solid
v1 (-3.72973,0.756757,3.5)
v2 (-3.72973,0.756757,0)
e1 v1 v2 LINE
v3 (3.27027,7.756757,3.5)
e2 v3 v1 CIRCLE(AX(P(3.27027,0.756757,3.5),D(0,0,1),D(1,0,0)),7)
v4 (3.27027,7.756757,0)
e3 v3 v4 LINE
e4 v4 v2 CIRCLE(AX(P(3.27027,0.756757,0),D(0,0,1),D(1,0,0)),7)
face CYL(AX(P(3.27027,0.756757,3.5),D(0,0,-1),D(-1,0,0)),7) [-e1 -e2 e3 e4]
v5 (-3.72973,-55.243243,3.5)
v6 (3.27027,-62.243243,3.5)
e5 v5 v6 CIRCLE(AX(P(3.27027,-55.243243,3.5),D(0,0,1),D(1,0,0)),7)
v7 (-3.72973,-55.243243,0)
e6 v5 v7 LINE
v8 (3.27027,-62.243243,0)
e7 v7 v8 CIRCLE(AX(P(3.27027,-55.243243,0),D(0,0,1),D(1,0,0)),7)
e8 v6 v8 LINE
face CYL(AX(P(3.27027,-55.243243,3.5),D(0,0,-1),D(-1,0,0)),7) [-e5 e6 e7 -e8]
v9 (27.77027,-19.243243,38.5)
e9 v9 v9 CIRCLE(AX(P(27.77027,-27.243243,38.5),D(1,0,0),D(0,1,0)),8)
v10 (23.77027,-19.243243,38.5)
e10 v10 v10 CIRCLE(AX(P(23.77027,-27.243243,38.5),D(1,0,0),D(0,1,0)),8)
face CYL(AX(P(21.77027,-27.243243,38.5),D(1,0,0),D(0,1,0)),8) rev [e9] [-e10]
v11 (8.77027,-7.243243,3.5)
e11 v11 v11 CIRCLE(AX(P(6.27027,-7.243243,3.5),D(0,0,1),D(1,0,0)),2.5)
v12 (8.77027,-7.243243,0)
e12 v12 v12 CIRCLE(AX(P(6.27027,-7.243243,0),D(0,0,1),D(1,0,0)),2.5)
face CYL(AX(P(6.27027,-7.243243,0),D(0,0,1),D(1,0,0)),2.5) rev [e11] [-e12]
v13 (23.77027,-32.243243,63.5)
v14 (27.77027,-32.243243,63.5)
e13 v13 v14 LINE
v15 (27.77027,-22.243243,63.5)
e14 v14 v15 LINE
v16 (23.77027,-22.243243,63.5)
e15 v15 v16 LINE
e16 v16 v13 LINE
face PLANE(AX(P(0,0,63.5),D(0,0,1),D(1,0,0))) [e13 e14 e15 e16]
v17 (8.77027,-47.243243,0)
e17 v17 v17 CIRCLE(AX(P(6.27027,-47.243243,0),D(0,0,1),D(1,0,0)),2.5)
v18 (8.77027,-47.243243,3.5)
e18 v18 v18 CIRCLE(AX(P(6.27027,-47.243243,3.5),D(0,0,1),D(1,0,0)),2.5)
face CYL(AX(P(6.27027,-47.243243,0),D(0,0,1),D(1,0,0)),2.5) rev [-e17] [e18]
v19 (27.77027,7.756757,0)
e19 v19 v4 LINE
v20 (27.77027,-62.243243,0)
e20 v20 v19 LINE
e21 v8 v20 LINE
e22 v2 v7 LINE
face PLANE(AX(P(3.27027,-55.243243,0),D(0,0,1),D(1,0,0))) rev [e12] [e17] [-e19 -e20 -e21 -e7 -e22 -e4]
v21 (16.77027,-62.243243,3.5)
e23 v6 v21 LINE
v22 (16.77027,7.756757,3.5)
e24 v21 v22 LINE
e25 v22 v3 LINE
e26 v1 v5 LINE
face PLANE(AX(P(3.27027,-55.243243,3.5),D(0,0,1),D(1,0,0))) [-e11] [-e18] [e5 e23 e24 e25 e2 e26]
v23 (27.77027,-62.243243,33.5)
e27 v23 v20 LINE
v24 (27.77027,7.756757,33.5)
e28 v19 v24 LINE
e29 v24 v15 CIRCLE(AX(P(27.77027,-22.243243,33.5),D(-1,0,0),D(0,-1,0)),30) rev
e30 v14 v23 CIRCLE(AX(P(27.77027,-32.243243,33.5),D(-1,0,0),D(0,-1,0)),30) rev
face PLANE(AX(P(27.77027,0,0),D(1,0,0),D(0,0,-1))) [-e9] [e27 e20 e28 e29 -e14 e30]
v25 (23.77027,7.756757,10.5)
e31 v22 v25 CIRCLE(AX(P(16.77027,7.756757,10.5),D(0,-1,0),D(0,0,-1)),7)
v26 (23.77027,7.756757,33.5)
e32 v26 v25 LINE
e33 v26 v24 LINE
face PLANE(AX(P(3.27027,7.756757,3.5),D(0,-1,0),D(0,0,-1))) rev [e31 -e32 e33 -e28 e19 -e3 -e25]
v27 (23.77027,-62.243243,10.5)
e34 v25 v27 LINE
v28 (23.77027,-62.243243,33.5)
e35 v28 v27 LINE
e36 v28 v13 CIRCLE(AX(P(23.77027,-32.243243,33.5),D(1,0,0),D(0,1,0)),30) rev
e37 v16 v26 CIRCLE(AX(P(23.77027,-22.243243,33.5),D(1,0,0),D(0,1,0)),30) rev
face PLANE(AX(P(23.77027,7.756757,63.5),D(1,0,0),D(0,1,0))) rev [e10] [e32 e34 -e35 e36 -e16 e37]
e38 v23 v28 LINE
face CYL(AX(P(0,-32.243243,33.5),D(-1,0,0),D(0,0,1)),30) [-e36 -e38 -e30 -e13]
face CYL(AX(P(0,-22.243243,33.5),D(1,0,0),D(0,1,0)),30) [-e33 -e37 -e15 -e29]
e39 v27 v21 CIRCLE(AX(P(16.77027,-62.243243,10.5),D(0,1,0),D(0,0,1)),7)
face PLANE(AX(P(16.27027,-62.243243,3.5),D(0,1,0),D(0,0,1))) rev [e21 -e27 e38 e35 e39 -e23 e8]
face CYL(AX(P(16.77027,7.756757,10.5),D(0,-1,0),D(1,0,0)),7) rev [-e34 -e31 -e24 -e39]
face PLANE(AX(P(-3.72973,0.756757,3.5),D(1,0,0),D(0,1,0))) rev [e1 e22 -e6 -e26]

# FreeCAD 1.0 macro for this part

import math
import FreeCAD as App
import Part
import Sketcher
from FreeCAD import Vector


def edges_at(feature, points):
    """Names of the edges that pass closest to the given points."""
    edges = feature.Shape.Edges
    near = lambda p: min(range(len(edges)), key=lambda i: edges[i].distToShape(Part.Vertex(*p))[0])
    return sorted({f"Edge{near(p) + 1}" for p in points})

doc = App.newDocument("Part")
params = doc.addObject("Spreadsheet::Sheet", "Params")
for row, (alias, value) in enumerate([
    ("sketch1_radius", "7 mm"),
    ("sketch1_width", "13 mm"),
    ("sketch1_height", "70 mm"),
    ("pad1_length", "3.5 mm"),
    ("sketch2_diameter", "5 mm"),
    ("pocket1_length", "3.5 mm"),
    ("sketch3_width", "4 mm"),
    ("sketch3_height", "70 mm"),
    ("pad2_length", "60 mm"),
    ("sketch4_diameter", "16 mm"),
    ("pocket2_length", "6 mm"),
    ("fillet_radius", "30 mm"),
    ("sketch5_width", "70 mm"),
    ("sketch5_height", "3.5 mm"),
    ("pad3_length", "11.5 mm"),
    ("fillet2_radius", "7 mm"),
], start=1):
    params.set(f"A{row}", alias)
    params.set(f"B{row}", "=" + value)
    params.setAlias(f"B{row}", alias)

body = doc.addObject("PartDesign::Body", "Body")

# Sketch on XY plane
sketch1 = body.newObject("Sketcher::SketchObject", "Sketch")
sketch1.AttachmentSupport = (doc.getObject("XY_Plane"), [""])
sketch1.MapMode = "FlatFace"
sketch1.addGeometry(Part.LineSegment(Vector(16.27027, -62.243243, 0), Vector(16.27027, 7.756757, 0)), False)
sketch1.addGeometry(Part.LineSegment(Vector(16.27027, 7.756757, 0), Vector(3.27027, 7.756757, 0)), False)
sketch1.addGeometry(Part.ArcOfCircle(Part.Circle(Vector(3.27027, 0.756757, 0), Vector(0, 0, 1), 7), math.radians(90), math.radians(180)), False)
sketch1.addGeometry(Part.LineSegment(Vector(-3.72973, 0.756757, 0), Vector(-3.72973, -55.243243, 0)), False)
sketch1.addGeometry(Part.ArcOfCircle(Part.Circle(Vector(3.27027, -55.243243, 0), Vector(0, 0, 1), 7), math.radians(180), math.radians(270)), False)
sketch1.addGeometry(Part.LineSegment(Vector(3.27027, -62.243243, 0), Vector(16.27027, -62.243243, 0)), False)
sketch1.addConstraint(Sketcher.Constraint("Coincident", 0, 2, 1, 1))
sketch1.addConstraint(Sketcher.Constraint("Tangent", 1, 2, 2, 1))
sketch1.addConstraint(Sketcher.Constraint("Tangent", 2, 2, 3, 1))
sketch1.addConstraint(Sketcher.Constraint("Tangent", 3, 2, 4, 1))
sketch1.addConstraint(Sketcher.Constraint("Tangent", 4, 2, 5, 1))
sketch1.addConstraint(Sketcher.Constraint("Coincident", 5, 2, 0, 1))
sketch1.addConstraint(Sketcher.Constraint("Vertical", 0))
sketch1.addConstraint(Sketcher.Constraint("Horizontal", 1))
sketch1.addConstraint(Sketcher.Constraint("Vertical", 3))
sketch1.addConstraint(Sketcher.Constraint("Horizontal", 5))
sketch1.addConstraint(Sketcher.Constraint("Equal", 2, 4))
sketch1.addConstraint(Sketcher.Constraint("Radius", 2, 7.0))
sketch1.addConstraint(Sketcher.Constraint("DistanceX", 1, 2, 1, 1, 13.0))
sketch1.addConstraint(Sketcher.Constraint("DistanceY", 0, 1, 0, 2, 70.0))
sketch1.addConstraint(Sketcher.Constraint("DistanceX", -1, 1, 2, 3, 3.27027))
sketch1.addConstraint(Sketcher.Constraint("DistanceY", -1, 1, 2, 3, 0.756757))
sketch1.setExpression("Constraints[11]", "Params.sketch1_radius")
sketch1.setExpression("Constraints[12]", "Params.sketch1_width")
sketch1.setExpression("Constraints[13]", "Params.sketch1_height")
pad1 = body.newObject("PartDesign::Pad", "Pad")
pad1.Profile = sketch1
pad1.setExpression("Length", "Params.pad1_length")

# Sketch on XY plane
sketch2 = body.newObject("Sketcher::SketchObject", "Sketch001")
sketch2.AttachmentSupport = (doc.getObject("XY_Plane"), [""])
sketch2.MapMode = "FlatFace"
sketch2.AttachmentOffset = App.Placement(Vector(0, 0, 3.5), App.Rotation())
sketch2.addGeometry(Part.Circle(Vector(6.27027, -7.243243, 0), Vector(0, 0, 1), 2.5), False)
sketch2.addGeometry(Part.Circle(Vector(6.27027, -47.243243, 0), Vector(0, 0, 1), 2.5), False)
sketch2.addConstraint(Sketcher.Constraint("Equal", 0, 1))
sketch2.addConstraint(Sketcher.Constraint("Vertical", 0, 3, 1, 3))
sketch2.addConstraint(Sketcher.Constraint("Diameter", 0, 5.0))
sketch2.addConstraint(Sketcher.Constraint("DistanceY", 1, 3, 0, 3, 40.0))
sketch2.addConstraint(Sketcher.Constraint("DistanceX", -1, 1, 0, 3, 6.27027))
sketch2.addConstraint(Sketcher.Constraint("DistanceY", 0, 3, -1, 1, 7.243243))
sketch2.setExpression("Constraints[2]", "Params.sketch2_diameter")
pocket1 = body.newObject("PartDesign::Pocket", "Pocket")
pocket1.Profile = sketch2
pocket1.setExpression("Length", "Params.pocket1_length")
body2 = doc.addObject("PartDesign::Body", "Body001")

# Sketch on XY plane
sketch3 = body2.newObject("Sketcher::SketchObject", "Sketch002")
sketch3.AttachmentSupport = (doc.getObject("XY_Plane001"), [""])
sketch3.MapMode = "FlatFace"
sketch3.AttachmentOffset = App.Placement(Vector(0, 0, 3.5), App.Rotation())
sketch3.addGeometry(Part.LineSegment(Vector(23.77027, 7.756757, 0), Vector(23.77027, -62.243243, 0)), False)
sketch3.addGeometry(Part.LineSegment(Vector(23.77027, -62.243243, 0), Vector(27.77027, -62.243243, 0)), False)
sketch3.addGeometry(Part.LineSegment(Vector(27.77027, -62.243243, 0), Vector(27.77027, 7.756757, 0)), False)
sketch3.addGeometry(Part.LineSegment(Vector(27.77027, 7.756757, 0), Vector(23.77027, 7.756757, 0)), False)
sketch3.addConstraint(Sketcher.Constraint("Coincident", 0, 2, 1, 1))
sketch3.addConstraint(Sketcher.Constraint("Coincident", 1, 2, 2, 1))
sketch3.addConstraint(Sketcher.Constraint("Coincident", 2, 2, 3, 1))
sketch3.addConstraint(Sketcher.Constraint("Coincident", 3, 2, 0, 1))
sketch3.addConstraint(Sketcher.Constraint("Vertical", 0))
sketch3.addConstraint(Sketcher.Constraint("Horizontal", 1))
sketch3.addConstraint(Sketcher.Constraint("Vertical", 2))
sketch3.addConstraint(Sketcher.Constraint("Horizontal", 3))
sketch3.addConstraint(Sketcher.Constraint("DistanceX", 1, 1, 1, 2, 4.0))
sketch3.addConstraint(Sketcher.Constraint("DistanceY", 0, 2, 0, 1, 70.0))
sketch3.addConstraint(Sketcher.Constraint("DistanceX", -1, 1, 0, 2, 23.77027))
sketch3.addConstraint(Sketcher.Constraint("DistanceY", 0, 2, -1, 1, 62.243243))
sketch3.setExpression("Constraints[8]", "Params.sketch3_width")
sketch3.setExpression("Constraints[9]", "Params.sketch3_height")
pad2 = body2.newObject("PartDesign::Pad", "Pad001")
pad2.Profile = sketch3
pad2.setExpression("Length", "Params.pad2_length")

# Sketch on YZ plane
sketch4 = body2.newObject("Sketcher::SketchObject", "Sketch003")
sketch4.AttachmentSupport = (doc.getObject("YZ_Plane001"), [""])
sketch4.MapMode = "FlatFace"
sketch4.AttachmentOffset = App.Placement(Vector(0, 0, 27.77027), App.Rotation())
sketch4.addGeometry(Part.Circle(Vector(-27.243243, 38.5, 0), Vector(0, 0, 1), 8), False)
sketch4.addConstraint(Sketcher.Constraint("Diameter", 0, 16.0))
sketch4.addConstraint(Sketcher.Constraint("DistanceY", -1, 1, 0, 3, 38.5))
sketch4.addConstraint(Sketcher.Constraint("DistanceX", 0, 3, -1, 1, 27.243243))
sketch4.setExpression("Constraints[0]", "Params.sketch4_diameter")
pocket2 = body2.newObject("PartDesign::Pocket", "Pocket001")
pocket2.Profile = sketch4
pocket2.setExpression("Length", "Params.pocket2_length")
doc.recompute()

fillet = body2.newObject("PartDesign::Fillet", "Fillet")
fillet.Base = (pocket2, edges_at(pocket2, [(25.77, 7.757, 63.5), (25.77, -62.243, 63.5)]))
fillet.setExpression("Radius", "Params.fillet_radius")
body.AllowCompound = True
doc.recompute()

boolean = body.newObject("PartDesign::Boolean", "Boolean")
boolean.Type = "Fuse"
boolean.addObjects([body2])

# Sketch on YZ plane
sketch5 = body.newObject("Sketcher::SketchObject", "Sketch004")
sketch5.AttachmentSupport = (doc.getObject("YZ_Plane"), [""])
sketch5.MapMode = "FlatFace"
sketch5.AttachmentOffset = App.Placement(Vector(0, 0, 16.27027), App.Rotation())
sketch5.addGeometry(Part.LineSegment(Vector(7.756757, 3.5, 0), Vector(-62.243243, 3.5, 0)), False)
sketch5.addGeometry(Part.LineSegment(Vector(-62.243243, 3.5, 0), Vector(-62.243243, 0, 0)), False)
sketch5.addGeometry(Part.LineSegment(Vector(-62.243243, 0, 0), Vector(7.756757, 0, 0)), False)
sketch5.addGeometry(Part.LineSegment(Vector(7.756757, 0, 0), Vector(7.756757, 3.5, 0)), False)
sketch5.addConstraint(Sketcher.Constraint("Coincident", 0, 2, 1, 1))
sketch5.addConstraint(Sketcher.Constraint("Coincident", 1, 2, 2, 1))
sketch5.addConstraint(Sketcher.Constraint("Coincident", 2, 2, 3, 1))
sketch5.addConstraint(Sketcher.Constraint("Coincident", 3, 2, 0, 1))
sketch5.addConstraint(Sketcher.Constraint("Horizontal", 0))
sketch5.addConstraint(Sketcher.Constraint("Vertical", 1))
sketch5.addConstraint(Sketcher.Constraint("Horizontal", 2))
sketch5.addConstraint(Sketcher.Constraint("Vertical", 3))
sketch5.addConstraint(Sketcher.Constraint("PointOnObject", 1, 2, -1))
sketch5.addConstraint(Sketcher.Constraint("DistanceX", 0, 2, 0, 1, 70.0))
sketch5.addConstraint(Sketcher.Constraint("DistanceY", 1, 2, 1, 1, 3.5))
sketch5.addConstraint(Sketcher.Constraint("DistanceX", 0, 2, -1, 1, 62.243243))
sketch5.setExpression("Constraints[9]", "Params.sketch5_width")
sketch5.setExpression("Constraints[10]", "Params.sketch5_height")
pad3 = body.newObject("PartDesign::Pad", "Pad002")
pad3.Profile = sketch5
pad3.setExpression("Length", "Params.pad3_length")
doc.recompute()

fillet2 = body.newObject("PartDesign::Fillet", "Fillet001")
fillet2.Base = (pad3, edges_at(pad3, [(23.77, -27.243, 3.5)]))
fillet2.setExpression("Radius", "Params.fillet2_radius")

doc.recompute()
